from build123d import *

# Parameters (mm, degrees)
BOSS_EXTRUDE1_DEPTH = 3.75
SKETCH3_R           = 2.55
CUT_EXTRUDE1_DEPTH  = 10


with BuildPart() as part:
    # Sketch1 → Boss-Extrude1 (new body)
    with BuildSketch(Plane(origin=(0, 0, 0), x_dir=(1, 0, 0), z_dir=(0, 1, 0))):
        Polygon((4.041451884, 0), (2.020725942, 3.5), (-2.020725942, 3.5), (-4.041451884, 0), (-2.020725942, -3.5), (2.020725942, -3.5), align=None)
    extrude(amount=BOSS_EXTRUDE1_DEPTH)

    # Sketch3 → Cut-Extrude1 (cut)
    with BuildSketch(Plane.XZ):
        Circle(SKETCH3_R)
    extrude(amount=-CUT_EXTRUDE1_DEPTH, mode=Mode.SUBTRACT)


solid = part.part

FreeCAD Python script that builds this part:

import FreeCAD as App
import Part
import Sketcher
Q = App.Units.Quantity

doc = App.newDocument("Part")
body = doc.addObject("PartDesign::Body", "Body")

sketch1 = doc.addObject("Sketcher::SketchObject", "Sketch")
body.addObject(sketch1)
sketch1.AttachmentSupport = (doc.XZ_Plane, [""])
sketch1.MapMode = "FlatFace"
sketch1.addGeometry([
    Part.LineSegment(App.Vector(4, 0, 0), App.Vector(2, -3.5, 0)),
    Part.LineSegment(App.Vector(2, -3.5, 0), App.Vector(-2, -3.5, 0)),
    Part.LineSegment(App.Vector(-2, -3.5, 0), App.Vector(-4, 0, 0)),
    Part.LineSegment(App.Vector(-4, 0, 0), App.Vector(-2, 3.5, 0)),
    Part.LineSegment(App.Vector(-2, 3.5, 0), App.Vector(2, 3.5, 0)),
    Part.LineSegment(App.Vector(2, 3.5, 0), App.Vector(4, 0, 0)),
], False)
sketch1.addConstraint([
    Sketcher.Constraint("Coincident", 0, 2, 1, 1),
    Sketcher.Constraint("Coincident", 1, 2, 2, 1),
    Sketcher.Constraint("Coincident", 2, 2, 3, 1),
    Sketcher.Constraint("Coincident", 3, 2, 4, 1),
    Sketcher.Constraint("Coincident", 4, 2, 5, 1),
    Sketcher.Constraint("Coincident", 5, 2, 0, 1),
    Sketcher.Constraint("Horizontal", 1),
    Sketcher.Constraint("Horizontal", 4),
    Sketcher.Constraint("Symmetric", 0, 2, 3, 2, -1, 1),
    Sketcher.Constraint("Symmetric", 2, 2, 5, 2, -1, 1),
    Sketcher.Constraint("PointOnObject", 2, 2, -1),
    Sketcher.Constraint("Parallel", 2, 5),
    Sketcher.Constraint("Vertical", 1, 2, 3, 2),
    Sketcher.Constraint("Angle", 0, Q("-120 deg")),
    Sketcher.Constraint("DistanceY", 1, 2, 3, 2, Q("7 mm")),
    Sketcher.Constraint("DistanceX", 1, 2, 1, 1, Q("4.041452 mm")),
])
pad1 = doc.addObject("PartDesign::Pad", "Pad")
body.addObject(pad1)
pad1.Profile = sketch1
pad1.Length = 3.75
pad1.Reversed = True

sketch2 = doc.addObject("Sketcher::SketchObject", "Sketch001")
body.addObject(sketch2)
sketch2.AttachmentSupport = (doc.XZ_Plane, [""])
sketch2.MapMode = "FlatFace"
sketch2.addGeometry(Part.Circle(App.Vector(0, 0, 0), App.Vector(0, 0, 1), 2.5), False)
sketch2.addConstraint([
    Sketcher.Constraint("Coincident", 0, 3, -1, 1),
    Sketcher.Constraint("Diameter", 0, Q("5.1 mm")),
])
pocket1 = doc.addObject("PartDesign::Pocket", "Pocket")
body.addObject(pocket1)
pocket1.Profile = sketch2
pocket1.Length = 10

doc.recompute()
